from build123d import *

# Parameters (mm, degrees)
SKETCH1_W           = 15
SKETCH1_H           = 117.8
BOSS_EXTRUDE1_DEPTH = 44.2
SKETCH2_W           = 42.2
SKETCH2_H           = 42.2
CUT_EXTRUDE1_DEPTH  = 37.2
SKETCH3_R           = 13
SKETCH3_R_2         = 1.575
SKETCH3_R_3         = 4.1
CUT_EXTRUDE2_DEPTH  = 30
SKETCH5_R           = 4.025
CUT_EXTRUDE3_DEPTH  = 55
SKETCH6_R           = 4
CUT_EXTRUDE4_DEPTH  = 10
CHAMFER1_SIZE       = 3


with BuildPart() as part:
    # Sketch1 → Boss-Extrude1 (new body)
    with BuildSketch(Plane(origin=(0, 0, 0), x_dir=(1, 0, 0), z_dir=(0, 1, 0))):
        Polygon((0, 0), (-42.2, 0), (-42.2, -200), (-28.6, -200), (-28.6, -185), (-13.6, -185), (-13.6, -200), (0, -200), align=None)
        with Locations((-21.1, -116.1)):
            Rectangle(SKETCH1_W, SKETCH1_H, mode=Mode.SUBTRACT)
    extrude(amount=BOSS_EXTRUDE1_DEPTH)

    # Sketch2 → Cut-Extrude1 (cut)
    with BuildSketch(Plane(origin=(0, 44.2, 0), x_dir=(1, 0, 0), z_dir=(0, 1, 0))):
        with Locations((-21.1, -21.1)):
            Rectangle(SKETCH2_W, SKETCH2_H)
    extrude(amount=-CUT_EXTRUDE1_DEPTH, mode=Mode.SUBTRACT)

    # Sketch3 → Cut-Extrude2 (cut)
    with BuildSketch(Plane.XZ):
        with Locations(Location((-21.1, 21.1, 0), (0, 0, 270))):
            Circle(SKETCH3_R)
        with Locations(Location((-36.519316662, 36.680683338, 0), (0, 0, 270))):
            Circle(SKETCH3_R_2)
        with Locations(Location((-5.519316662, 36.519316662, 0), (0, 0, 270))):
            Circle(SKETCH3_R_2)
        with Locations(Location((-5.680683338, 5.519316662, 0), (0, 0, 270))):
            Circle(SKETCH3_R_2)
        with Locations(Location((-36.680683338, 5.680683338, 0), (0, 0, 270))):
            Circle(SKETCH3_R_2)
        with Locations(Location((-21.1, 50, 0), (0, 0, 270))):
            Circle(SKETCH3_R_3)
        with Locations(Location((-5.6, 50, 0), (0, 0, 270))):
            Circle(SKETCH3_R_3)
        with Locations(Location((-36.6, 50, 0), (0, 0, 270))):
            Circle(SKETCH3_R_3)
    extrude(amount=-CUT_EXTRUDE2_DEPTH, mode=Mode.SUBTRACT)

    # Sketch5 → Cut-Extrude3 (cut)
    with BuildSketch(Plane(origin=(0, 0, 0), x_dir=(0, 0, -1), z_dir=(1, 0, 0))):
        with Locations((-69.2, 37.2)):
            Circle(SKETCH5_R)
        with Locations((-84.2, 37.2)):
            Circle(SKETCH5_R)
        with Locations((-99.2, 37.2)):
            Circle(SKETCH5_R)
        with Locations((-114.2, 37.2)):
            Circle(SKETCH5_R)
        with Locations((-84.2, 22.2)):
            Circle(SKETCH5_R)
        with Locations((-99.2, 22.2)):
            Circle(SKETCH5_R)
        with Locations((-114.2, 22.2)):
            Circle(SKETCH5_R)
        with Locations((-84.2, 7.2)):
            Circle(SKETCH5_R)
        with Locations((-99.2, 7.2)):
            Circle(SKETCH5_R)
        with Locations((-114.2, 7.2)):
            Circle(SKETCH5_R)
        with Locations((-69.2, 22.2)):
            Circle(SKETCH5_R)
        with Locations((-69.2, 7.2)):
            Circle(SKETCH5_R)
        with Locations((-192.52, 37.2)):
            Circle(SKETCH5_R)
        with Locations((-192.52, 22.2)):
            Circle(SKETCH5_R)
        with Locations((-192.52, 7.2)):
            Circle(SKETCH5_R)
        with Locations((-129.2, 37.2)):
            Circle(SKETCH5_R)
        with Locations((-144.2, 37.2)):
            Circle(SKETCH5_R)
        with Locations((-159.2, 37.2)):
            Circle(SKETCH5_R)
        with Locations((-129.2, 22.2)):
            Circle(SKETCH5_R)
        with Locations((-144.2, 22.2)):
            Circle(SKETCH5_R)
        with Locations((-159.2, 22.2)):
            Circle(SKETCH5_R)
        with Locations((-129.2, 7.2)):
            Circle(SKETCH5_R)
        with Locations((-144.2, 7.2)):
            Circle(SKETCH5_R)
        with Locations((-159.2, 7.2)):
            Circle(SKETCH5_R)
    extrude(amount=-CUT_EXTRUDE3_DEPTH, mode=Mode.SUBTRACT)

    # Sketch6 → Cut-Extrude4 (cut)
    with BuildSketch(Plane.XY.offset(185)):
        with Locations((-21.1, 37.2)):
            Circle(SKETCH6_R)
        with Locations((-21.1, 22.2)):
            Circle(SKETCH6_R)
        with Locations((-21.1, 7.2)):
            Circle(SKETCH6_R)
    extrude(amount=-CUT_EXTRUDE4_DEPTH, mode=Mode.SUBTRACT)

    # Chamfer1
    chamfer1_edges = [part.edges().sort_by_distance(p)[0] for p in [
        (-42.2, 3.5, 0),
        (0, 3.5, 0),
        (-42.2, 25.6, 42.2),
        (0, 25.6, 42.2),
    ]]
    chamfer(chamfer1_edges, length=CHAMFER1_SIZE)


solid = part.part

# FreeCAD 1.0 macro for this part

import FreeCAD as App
import Part
import Sketcher
from FreeCAD import Vector
Q = App.Units.Quantity


def edges_at(feature, points):
    """Names of the edges that pass closest to the given points."""
    edges = feature.Shape.Edges
    near = lambda p: min(range(len(edges)), key=lambda i: edges[i].distToShape(Part.Vertex(*p))[0])
    return sorted({f"Edge{near(p) + 1}" for p in points})

doc = App.newDocument("Part")
body = doc.addObject("PartDesign::Body", "Body")

# Sketch on XZ plane
sketch1 = doc.addObject("Sketcher::SketchObject", "Sketch")
body.addObject(sketch1)
sketch1.AttachmentSupport = (doc.XZ_Plane, [""])
sketch1.MapMode = "FlatFace"
sketch1.addGeometry([
    Part.LineSegment(Vector(0, 0, 0), Vector(-42.2, 0, 0)),  # 0
    Part.LineSegment(Vector(-42.2, 0, 0), Vector(-42.2, 200, 0)),  # 1
    Part.LineSegment(Vector(-42.2, 200, 0), Vector(-28.6, 200, 0)),  # 2
    Part.LineSegment(Vector(-28.6, 200, 0), Vector(-28.6, 185, 0)),  # 3
    Part.LineSegment(Vector(-28.6, 185, 0), Vector(-13.6, 185, 0)),  # 4
    Part.LineSegment(Vector(-13.6, 185, 0), Vector(-13.6, 200, 0)),  # 5
    Part.LineSegment(Vector(-13.6, 200, 0), Vector(0, 200, 0)),  # 6
    Part.LineSegment(Vector(0, 200, 0), Vector(0, 0, 0)),  # 7
    Part.LineSegment(Vector(-13.6, 175, 0), Vector(-28.6, 175, 0)),  # 8
    Part.LineSegment(Vector(-28.6, 175, 0), Vector(-28.6, 57.2, 0)),  # 9
    Part.LineSegment(Vector(-28.6, 57.2, 0), Vector(-13.6, 57.2, 0)),  # 10
    Part.LineSegment(Vector(-13.6, 57.2, 0), Vector(-13.6, 175, 0)),  # 11
], False)
sketch1.addConstraint([
    Sketcher.Constraint("Coincident", 0, 2, 1, 1),
    Sketcher.Constraint("Coincident", 1, 2, 2, 1),
    Sketcher.Constraint("Coincident", 2, 2, 3, 1),
    Sketcher.Constraint("Coincident", 3, 2, 4, 1),
    Sketcher.Constraint("Coincident", 4, 2, 5, 1),
    Sketcher.Constraint("Coincident", 5, 2, 6, 1),
    Sketcher.Constraint("Coincident", 6, 2, 7, 1),
    Sketcher.Constraint("Coincident", 7, 2, 0, 1),
    Sketcher.Constraint("Coincident", 8, 2, 9, 1),
    Sketcher.Constraint("Coincident", 9, 2, 10, 1),
    Sketcher.Constraint("Coincident", 10, 2, 11, 1),
    Sketcher.Constraint("Coincident", 11, 2, 8, 1),
    Sketcher.Constraint("Horizontal", 0),
    Sketcher.Constraint("Vertical", 1),
    Sketcher.Constraint("Horizontal", 2),
    Sketcher.Constraint("Vertical", 3),
    Sketcher.Constraint("Horizontal", 4),
    Sketcher.Constraint("Vertical", 5),
    Sketcher.Constraint("Horizontal", 6),
    Sketcher.Constraint("Vertical", 7),
    Sketcher.Constraint("Horizontal", 8),
    Sketcher.Constraint("Vertical", 9),
    Sketcher.Constraint("Horizontal", 10),
    Sketcher.Constraint("Vertical", 11),
    Sketcher.Constraint("Coincident", 7, 2, -1, 1),
    Sketcher.Constraint("Horizontal", 2, 2, 5, 2),
    Sketcher.Constraint("Vertical", 3, 2, 8, 2),
    Sketcher.Constraint("Vertical", 5, 2, 10, 2),
    Sketcher.Constraint("Equal", 2, 6),
    Sketcher.Constraint("Equal", 10, 3),
    Sketcher.Constraint("DistanceX", 4, 1, 4, 2, Q("15 mm")),
    Sketcher.Constraint("DistanceY", 1, 1, 1, 2, Q("200 mm")),
    Sketcher.Constraint("DistanceX", 0, 2, 0, 1, Q("42.2 mm")),
    Sketcher.Constraint("DistanceY", 9, 2, 9, 1, Q("117.8 mm")),
    Sketcher.Constraint("DistanceY", -1, 1, 8, 2, Q("175 mm")),
])
pad1 = doc.addObject("PartDesign::Pad", "Pad")
body.addObject(pad1)
pad1.Profile = sketch1
pad1.Length = 44.2
pad1.Reversed = True

# Sketch on XZ plane
sketch2 = doc.addObject("Sketcher::SketchObject", "Sketch001")
body.addObject(sketch2)
sketch2.AttachmentSupport = (doc.XZ_Plane, [""])
sketch2.MapMode = "FlatFace"
sketch2.AttachmentOffset = App.Placement(Vector(0, 0, -44.2), App.Rotation())
sketch2.addGeometry([
    Part.LineSegment(Vector(-42.2, 0, 0), Vector(-42.2, 42.2, 0)),
    Part.LineSegment(Vector(-42.2, 42.2, 0), Vector(0, 42.2, 0)),
    Part.LineSegment(Vector(0, 42.2, 0), Vector(0, 0, 0)),
    Part.LineSegment(Vector(0, 0, 0), Vector(-42.2, 0, 0)),
], False)
sketch2.addConstraint([
    Sketcher.Constraint("Coincident", 0, 2, 1, 1),
    Sketcher.Constraint("Coincident", 1, 2, 2, 1),
    Sketcher.Constraint("Coincident", 2, 2, 3, 1),
    Sketcher.Constraint("Coincident", 3, 2, 0, 1),
    Sketcher.Constraint("Vertical", 0),
    Sketcher.Constraint("Horizontal", 1),
    Sketcher.Constraint("Vertical", 2),
    Sketcher.Constraint("Horizontal", 3),
    Sketcher.Constraint("Coincident", 2, 2, -1, 1),
    Sketcher.Constraint("Equal", 3, 0),
    Sketcher.Constraint("DistanceX", 1, 1, 1, 2, Q("42.2 mm")),
])
pocket1 = doc.addObject("PartDesign::Pocket", "Pocket")
body.addObject(pocket1)
pocket1.Profile = sketch2
pocket1.Length = 37.2
pocket1.Reversed = True

# Sketch on XZ plane
sketch3 = doc.addObject("Sketcher::SketchObject", "Sketch002")
body.addObject(sketch3)
sketch3.AttachmentSupport = (doc.XZ_Plane, [""])
sketch3.MapMode = "FlatFace"
sketch3.addGeometry([
    Part.Circle(Vector(-21.1, 21.1, 0), Vector(0, 0, 1), 13),  # 0
    Part.Circle(Vector(-36.519317, 36.680683, 0), Vector(0, 0, 1), 1.575),  # 1
    Part.Circle(Vector(-5.519317, 36.519317, 0), Vector(0, 0, 1), 1.575),  # 2
    Part.Circle(Vector(-5.680683, 5.519317, 0), Vector(0, 0, 1), 1.575),  # 3
    Part.Circle(Vector(-36.680683, 5.680683, 0), Vector(0, 0, 1), 1.575),  # 4
    Part.Circle(Vector(-21.1, 50, 0), Vector(0, 0, 1), 4.1),  # 5
    Part.Circle(Vector(-5.6, 50, 0), Vector(0, 0, 1), 4.1),  # 6
    Part.Circle(Vector(-36.6, 50, 0), Vector(0, 0, 1), 4.1),  # 7
], False)
sketch3.addConstraint([
    Sketcher.Constraint("Equal", 1, 2),
    Sketcher.Constraint("Equal", 2, 3),
    Sketcher.Constraint("Equal", 3, 4),
    Sketcher.Constraint("Equal", 5, 6),
    Sketcher.Constraint("Equal", 6, 7),
    Sketcher.Constraint("Horizontal", 5, 3, 6, 3),
    Sketcher.Constraint("Horizontal", 6, 3, 7, 3),
    Sketcher.Constraint("Vertical", 0, 3, 5, 3),
    Sketcher.Constraint("Diameter", 0, Q("26 mm")),
    Sketcher.Constraint("Diameter", 5, Q("8.2 mm")),
    Sketcher.Constraint("Diameter", 1, Q("3.15 mm")),
    Sketcher.Constraint("DistanceY", -1, 1, 5, 3, Q("50 mm")),
    Sketcher.Constraint("DistanceX", 1, 3, 2, 3, Q("31 mm")),
    Sketcher.Constraint("DistanceY", 3, 3, 2, 3, Q("31 mm")),
    Sketcher.Constraint("DistanceY", 4, 3, 1, 3, Q("31 mm")),
    Sketcher.Constraint("DistanceX", 4, 3, 3, 3, Q("31 mm")),
    Sketcher.Constraint("DistanceX", 7, 3, 6, 3, Q("31 mm")),
    Sketcher.Constraint("DistanceX", 0, 3, -1, 1, Q("21.1 mm")),
    Sketcher.Constraint("DistanceY", -1, 1, 0, 3, Q("21.1 mm")),
    Sketcher.Constraint("DistanceX", 6, 3, -1, 1, Q("5.6 mm")),
    Sketcher.Constraint("DistanceX", 1, 3, -1, 1, Q("36.519317 mm")),
    Sketcher.Constraint("DistanceY", -1, 1, 1, 3, Q("36.680683 mm")),
    Sketcher.Constraint("DistanceY", -1, 1, 2, 3, Q("36.519317 mm")),
    Sketcher.Constraint("DistanceX", 3, 3, -1, 1, Q("5.680683 mm")),
])
pocket2 = doc.addObject("PartDesign::Pocket", "Pocket001")
body.addObject(pocket2)
pocket2.Profile = sketch3
pocket2.Length = 30

# Sketch on YZ plane
sketch4 = doc.addObject("Sketcher::SketchObject", "Sketch003")
body.addObject(sketch4)
sketch4.AttachmentSupport = (doc.YZ_Plane, [""])
sketch4.MapMode = "FlatFace"
sketch4.addGeometry([
    Part.Circle(Vector(37.2, 69.2, 0), Vector(0, 0, 1), 4.025),  # 0
    Part.Circle(Vector(37.2, 84.2, 0), Vector(0, 0, 1), 4.025),  # 1
    Part.Circle(Vector(37.2, 99.2, 0), Vector(0, 0, 1), 4.025),  # 2
    Part.Circle(Vector(37.2, 114.2, 0), Vector(0, 0, 1), 4.025),  # 3
    Part.Circle(Vector(22.2, 84.2, 0), Vector(0, 0, 1), 4.025),  # 4
    Part.Circle(Vector(22.2, 99.2, 0), Vector(0, 0, 1), 4.025),  # 5
    Part.Circle(Vector(22.2, 114.2, 0), Vector(0, 0, 1), 4.025),  # 6
    Part.Circle(Vector(7.2, 84.2, 0), Vector(0, 0, 1), 4.025),  # 7
    Part.Circle(Vector(7.2, 99.2, 0), Vector(0, 0, 1), 4.025),  # 8
    Part.Circle(Vector(7.2, 114.2, 0), Vector(0, 0, 1), 4.025),  # 9
    Part.Circle(Vector(22.2, 69.2, 0), Vector(0, 0, 1), 4.025),  # 10
    Part.Circle(Vector(7.2, 69.2, 0), Vector(0, 0, 1), 4.025),  # 11
    Part.Circle(Vector(37.2, 192.52, 0), Vector(0, 0, 1), 4.025),  # 12
    Part.Circle(Vector(22.2, 192.52, 0), Vector(0, 0, 1), 4.025),  # 13
    Part.Circle(Vector(7.2, 192.52, 0), Vector(0, 0, 1), 4.025),  # 14
    Part.Circle(Vector(37.2, 129.2, 0), Vector(0, 0, 1), 4.025),  # 15
    Part.Circle(Vector(37.2, 144.2, 0), Vector(0, 0, 1), 4.025),  # 16
    Part.Circle(Vector(37.2, 159.2, 0), Vector(0, 0, 1), 4.025),  # 17
    Part.Circle(Vector(22.2, 129.2, 0), Vector(0, 0, 1), 4.025),  # 18
    Part.Circle(Vector(22.2, 144.2, 0), Vector(0, 0, 1), 4.025),  # 19
    Part.Circle(Vector(22.2, 159.2, 0), Vector(0, 0, 1), 4.025),  # 20
    Part.Circle(Vector(7.2, 129.2, 0), Vector(0, 0, 1), 4.025),  # 21
    Part.Circle(Vector(7.2, 144.2, 0), Vector(0, 0, 1), 4.025),  # 22
    Part.Circle(Vector(7.2, 159.2, 0), Vector(0, 0, 1), 4.025),  # 23
], False)
sketch4.addConstraint([
    Sketcher.Constraint("Equal", 0, 1),
    Sketcher.Constraint("Equal", 1, 2),
    Sketcher.Constraint("Equal", 2, 3),
    Sketcher.Constraint("Equal", 3, 4),
    Sketcher.Constraint("Equal", 4, 5),
    Sketcher.Constraint("Equal", 5, 6),
    Sketcher.Constraint("Equal", 6, 7),
    Sketcher.Constraint("Equal", 7, 8),
    Sketcher.Constraint("Equal", 8, 9),
    Sketcher.Constraint("Equal", 9, 10),
    Sketcher.Constraint("Equal", 10, 11),
    Sketcher.Constraint("Equal", 11, 12),
    Sketcher.Constraint("Equal", 12, 13),
    Sketcher.Constraint("Equal", 13, 14),
    Sketcher.Constraint("Equal", 14, 15),
    Sketcher.Constraint("Equal", 15, 16),
    Sketcher.Constraint("Equal", 16, 17),
    Sketcher.Constraint("Equal", 17, 18),
    Sketcher.Constraint("Equal", 18, 19),
    Sketcher.Constraint("Equal", 19, 20),
    Sketcher.Constraint("Equal", 20, 21),
    Sketcher.Constraint("Equal", 21, 22),
    Sketcher.Constraint("Equal", 22, 23),
    Sketcher.Constraint("Horizontal", 1, 3, 4, 3),
    Sketcher.Constraint("Horizontal", 2, 3, 5, 3),
    Sketcher.Constraint("Horizontal", 3, 3, 6, 3),
    Sketcher.Constraint("Horizontal", 4, 3, 7, 3),
    Sketcher.Constraint("Horizontal", 5, 3, 8, 3),
    Sketcher.Constraint("Horizontal", 6, 3, 9, 3),
    Sketcher.Constraint("Horizontal", 0, 3, 10, 3),
    Sketcher.Constraint("Horizontal", 10, 3, 11, 3),
    Sketcher.Constraint("Horizontal", 12, 3, 13, 3),
    Sketcher.Constraint("Horizontal", 13, 3, 14, 3),
    Sketcher.Constraint("Horizontal", 15, 3, 18, 3),
    Sketcher.Constraint("Horizontal", 16, 3, 19, 3),
    Sketcher.Constraint("Horizontal", 17, 3, 20, 3),
    Sketcher.Constraint("Horizontal", 18, 3, 21, 3),
    Sketcher.Constraint("Horizontal", 19, 3, 22, 3),
    Sketcher.Constraint("Horizontal", 20, 3, 23, 3),
    Sketcher.Constraint("Vertical", 0, 3, 1, 3),
    Sketcher.Constraint("Vertical", 1, 3, 2, 3),
    Sketcher.Constraint("Vertical", 2, 3, 3, 3),
    Sketcher.Constraint("Vertical", 4, 3, 5, 3),
    Sketcher.Constraint("Vertical", 5, 3, 6, 3),
    Sketcher.Constraint("Vertical", 7, 3, 8, 3),
    Sketcher.Constraint("Vertical", 8, 3, 9, 3),
    Sketcher.Constraint("Vertical", 6, 3, 10, 3),
    Sketcher.Constraint("Vertical", 9, 3, 11, 3),
    Sketcher.Constraint("Vertical", 3, 3, 12, 3),
    Sketcher.Constraint("Vertical", 10, 3, 13, 3),
    Sketcher.Constraint("Vertical", 11, 3, 14, 3),
    Sketcher.Constraint("Vertical", 12, 3, 15, 3),
    Sketcher.Constraint("Vertical", 15, 3, 16, 3),
    Sketcher.Constraint("Vertical", 16, 3, 17, 3),
    Sketcher.Constraint("Vertical", 13, 3, 18, 3),
    Sketcher.Constraint("Vertical", 18, 3, 19, 3),
    Sketcher.Constraint("Vertical", 19, 3, 20, 3),
    Sketcher.Constraint("Vertical", 14, 3, 21, 3),
    Sketcher.Constraint("Vertical", 21, 3, 22, 3),
    Sketcher.Constraint("Vertical", 22, 3, 23, 3),
    Sketcher.Constraint("Diameter", 0, Q("8.05 mm")),
    Sketcher.Constraint("DistanceY", 0, 3, 1, 3, Q("15 mm")),
    Sketcher.Constraint("DistanceY", 1, 3, 2, 3, Q("15 mm")),
    Sketcher.Constraint("DistanceY", 2, 3, 3, 3, Q("15 mm")),
    Sketcher.Constraint("DistanceX", 4, 3, 1, 3, Q("15 mm")),
    Sketcher.Constraint("DistanceX", 7, 3, 4, 3, Q("15 mm")),
    Sketcher.Constraint("DistanceY", 3, 3, 15, 3, Q("15 mm")),
    Sketcher.Constraint("DistanceY", 15, 3, 16, 3, Q("15 mm")),
    Sketcher.Constraint("DistanceY", 16, 3, 17, 3, Q("15 mm")),
    Sketcher.Constraint("DistanceX", -1, 1, 0, 3, Q("37.2 mm")),
    Sketcher.Constraint("DistanceY", -1, 1, 0, 3, Q("69.2 mm")),
    Sketcher.Constraint("DistanceY", -1, 1, 12, 3, Q("192.52 mm")),
])
pocket3 = doc.addObject("PartDesign::Pocket", "Pocket002")
body.addObject(pocket3)
pocket3.Profile = sketch4
pocket3.Length = 55

# Sketch on XY plane
sketch5 = doc.addObject("Sketcher::SketchObject", "Sketch004")
body.addObject(sketch5)
sketch5.AttachmentSupport = (doc.XY_Plane, [""])
sketch5.MapMode = "FlatFace"
sketch5.AttachmentOffset = App.Placement(Vector(0, 0, 185), App.Rotation())
sketch5.addGeometry([
    Part.Circle(Vector(-21.1, 37.2, 0), Vector(0, 0, 1), 4),
    Part.Circle(Vector(-21.1, 22.2, 0), Vector(0, 0, 1), 4),
    Part.Circle(Vector(-21.1, 7.2, 0), Vector(0, 0, 1), 4),
], False)
sketch5.addConstraint([
    Sketcher.Constraint("Equal", 0, 1),
    Sketcher.Constraint("Equal", 1, 2),
    Sketcher.Constraint("Vertical", 0, 3, 1, 3),
    Sketcher.Constraint("Vertical", 1, 3, 2, 3),
    Sketcher.Constraint("Diameter", 0, Q("8 mm")),
    Sketcher.Constraint("DistanceY", 1, 3, 0, 3, Q("15 mm")),
    Sketcher.Constraint("DistanceY", 2, 3, 1, 3, Q("15 mm")),
    Sketcher.Constraint("DistanceX", 0, 3, -1, 1, Q("21.1 mm")),
    Sketcher.Constraint("DistanceY", -1, 1, 0, 3, Q("37.2 mm")),
])
pocket4 = doc.addObject("PartDesign::Pocket", "Pocket003")
body.addObject(pocket4)
pocket4.Profile = sketch5
pocket4.Length = 10
doc.recompute()

chamfer = doc.addObject("PartDesign::Chamfer", "Chamfer")
body.addObject(chamfer)
chamfer.Base = (pocket4, edges_at(pocket4, [
    (-42.2, 3.5, 0),
    (0, 3.5, 0),
    (-42.2, 25.6, 42.2),
    (0, 25.6, 42.2),
]))
chamfer.Size = 3

doc.recompute()
